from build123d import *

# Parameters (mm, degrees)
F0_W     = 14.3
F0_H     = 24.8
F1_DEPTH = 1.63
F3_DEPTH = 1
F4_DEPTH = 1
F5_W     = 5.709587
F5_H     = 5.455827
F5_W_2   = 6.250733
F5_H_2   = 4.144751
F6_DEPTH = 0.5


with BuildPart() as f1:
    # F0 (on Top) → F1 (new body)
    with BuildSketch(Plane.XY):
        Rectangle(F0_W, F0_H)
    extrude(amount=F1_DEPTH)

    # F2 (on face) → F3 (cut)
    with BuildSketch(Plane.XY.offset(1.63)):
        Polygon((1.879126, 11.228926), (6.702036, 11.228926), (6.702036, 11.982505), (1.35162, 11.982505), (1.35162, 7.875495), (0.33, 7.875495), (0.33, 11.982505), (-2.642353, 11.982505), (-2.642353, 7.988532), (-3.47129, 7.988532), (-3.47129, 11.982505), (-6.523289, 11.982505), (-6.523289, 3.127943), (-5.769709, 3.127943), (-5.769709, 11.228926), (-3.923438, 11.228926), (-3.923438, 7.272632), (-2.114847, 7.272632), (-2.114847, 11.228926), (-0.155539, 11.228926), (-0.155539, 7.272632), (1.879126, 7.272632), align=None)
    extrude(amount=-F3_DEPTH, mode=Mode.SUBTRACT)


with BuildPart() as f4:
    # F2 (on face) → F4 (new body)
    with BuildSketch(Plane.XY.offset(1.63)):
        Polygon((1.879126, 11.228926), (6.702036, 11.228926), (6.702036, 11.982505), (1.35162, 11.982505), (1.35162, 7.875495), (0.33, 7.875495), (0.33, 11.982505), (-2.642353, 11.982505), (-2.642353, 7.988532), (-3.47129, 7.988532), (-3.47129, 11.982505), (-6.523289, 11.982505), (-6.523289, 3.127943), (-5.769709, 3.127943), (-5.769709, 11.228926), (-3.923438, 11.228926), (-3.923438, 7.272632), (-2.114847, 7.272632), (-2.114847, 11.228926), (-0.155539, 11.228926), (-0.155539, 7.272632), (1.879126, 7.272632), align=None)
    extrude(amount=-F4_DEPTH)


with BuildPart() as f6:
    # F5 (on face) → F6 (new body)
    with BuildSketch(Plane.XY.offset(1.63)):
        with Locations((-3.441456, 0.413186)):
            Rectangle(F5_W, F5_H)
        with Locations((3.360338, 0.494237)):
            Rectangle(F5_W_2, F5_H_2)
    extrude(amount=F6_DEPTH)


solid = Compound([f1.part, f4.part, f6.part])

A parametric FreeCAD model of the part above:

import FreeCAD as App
import Part
import Sketcher

V = App.Vector

doc = App.newDocument("Part")
params = doc.addObject("Spreadsheet::Sheet", "Params")
for row, (alias, value) in enumerate([
    ("sketch1_width", "14.3 mm"),
    ("sketch1_height", "24.8 mm"),
    ("pad1_length", "1.63 mm"),
    ("pocket1_length", "1 mm"),
    ("pad2_length", "1 mm"),
    ("pad3_length", "0.5 mm"),
], start=1):
    params.set(f"A{row}", alias)
    params.set(f"B{row}", "=" + value)
    params.setAlias(f"B{row}", alias)

body = doc.addObject("PartDesign::Body", "Body")

sketch1 = body.newObject("Sketcher::SketchObject", "Sketch")
sketch1.AttachmentSupport = (doc.getObject("XY_Plane"), [""])
sketch1.MapMode = "FlatFace"
sketch1.addGeometry(Part.LineSegment(V(-7.15, 12.4, 0), V(-7.15, -12.4, 0)), False)
sketch1.addGeometry(Part.LineSegment(V(-7.15, -12.4, 0), V(7.15, -12.4, 0)), False)
sketch1.addGeometry(Part.LineSegment(V(7.15, -12.4, 0), V(7.15, 12.4, 0)), False)
sketch1.addGeometry(Part.LineSegment(V(7.15, 12.4, 0), V(-7.15, 12.4, 0)), False)
sketch1.addConstraint(Sketcher.Constraint("Coincident", 0, 2, 1, 1))
sketch1.addConstraint(Sketcher.Constraint("Coincident", 1, 2, 2, 1))
sketch1.addConstraint(Sketcher.Constraint("Coincident", 2, 2, 3, 1))
sketch1.addConstraint(Sketcher.Constraint("Coincident", 3, 2, 0, 1))
sketch1.addConstraint(Sketcher.Constraint("Vertical", 0))
sketch1.addConstraint(Sketcher.Constraint("Horizontal", 1))
sketch1.addConstraint(Sketcher.Constraint("Vertical", 2))
sketch1.addConstraint(Sketcher.Constraint("Horizontal", 3))
sketch1.addConstraint(Sketcher.Constraint("Symmetric", 0, 2, 2, 2, -1, 1))
sketch1.addConstraint(Sketcher.Constraint("DistanceX", 1, 1, 1, 2, 14.3))
sketch1.addConstraint(Sketcher.Constraint("DistanceY", 0, 2, 0, 1, 24.8))
sketch1.setExpression("Constraints[9]", "Params.sketch1_width")
sketch1.setExpression("Constraints[10]", "Params.sketch1_height")
pad1 = body.newObject("PartDesign::Pad", "Pad")
pad1.Profile = sketch1
pad1.setExpression("Length", "Params.pad1_length")

sketch2 = body.newObject("Sketcher::SketchObject", "Sketch001")
sketch2.AttachmentSupport = (doc.getObject("XY_Plane"), [""])
sketch2.MapMode = "FlatFace"
sketch2.AttachmentOffset = App.Placement(V(0, 0, 1.63), App.Rotation())
sketch2.addGeometry(Part.LineSegment(V(1.879126, 11.228926, 0), V(6.702036, 11.228926, 0)), False)
sketch2.addGeometry(Part.LineSegment(V(6.702036, 11.228926, 0), V(6.702036, 11.982505, 0)), False)
sketch2.addGeometry(Part.LineSegment(V(6.702036, 11.982505, 0), V(1.35162, 11.982505, 0)), False)
sketch2.addGeometry(Part.LineSegment(V(1.35162, 11.982505, 0), V(1.35162, 7.875495, 0)), False)
sketch2.addGeometry(Part.LineSegment(V(1.35162, 7.875495, 0), V(0.33, 7.875495, 0)), False)
sketch2.addGeometry(Part.LineSegment(V(0.33, 7.875495, 0), V(0.33, 11.982505, 0)), False)
sketch2.addGeometry(Part.LineSegment(V(0.33, 11.982505, 0), V(-2.642353, 11.982505, 0)), False)
sketch2.addGeometry(Part.LineSegment(V(-2.642353, 11.982505, 0), V(-2.642353, 7.988532, 0)), False)
sketch2.addGeometry(Part.LineSegment(V(-2.642353, 7.988532, 0), V(-3.47129, 7.988532, 0)), False)
sketch2.addGeometry(Part.LineSegment(V(-3.47129, 7.988532, 0), V(-3.47129, 11.982505, 0)), False)
sketch2.addGeometry(Part.LineSegment(V(-3.47129, 11.982505, 0), V(-6.523289, 11.982505, 0)), False)
sketch2.addGeometry(Part.LineSegment(V(-6.523289, 11.982505, 0), V(-6.523289, 3.127943, 0)), False)
sketch2.addGeometry(Part.LineSegment(V(-6.523289, 3.127943, 0), V(-5.769709, 3.127943, 0)), False)
sketch2.addGeometry(Part.LineSegment(V(-5.769709, 3.127943, 0), V(-5.769709, 11.228926, 0)), False)
sketch2.addGeometry(Part.LineSegment(V(-5.769709, 11.228926, 0), V(-3.923438, 11.228926, 0)), False)
sketch2.addGeometry(Part.LineSegment(V(-3.923438, 11.228926, 0), V(-3.923438, 7.272632, 0)), False)
sketch2.addGeometry(Part.LineSegment(V(-3.923438, 7.272632, 0), V(-2.114847, 7.272632, 0)), False)
sketch2.addGeometry(Part.LineSegment(V(-2.114847, 7.272632, 0), V(-2.114847, 11.228926, 0)), False)
sketch2.addGeometry(Part.LineSegment(V(-2.114847, 11.228926, 0), V(-0.155539, 11.228926, 0)), False)
sketch2.addGeometry(Part.LineSegment(V(-0.155539, 11.228926, 0), V(-0.155539, 7.272632, 0)), False)
sketch2.addGeometry(Part.LineSegment(V(-0.155539, 7.272632, 0), V(1.879126, 7.272632, 0)), False)
sketch2.addGeometry(Part.LineSegment(V(1.879126, 7.272632, 0), V(1.879126, 11.228926, 0)), False)
sketch2.addConstraint(Sketcher.Constraint("Coincident", 0, 2, 1, 1))
sketch2.addConstraint(Sketcher.Constraint("Coincident", 1, 2, 2, 1))
sketch2.addConstraint(Sketcher.Constraint("Coincident", 2, 2, 3, 1))
sketch2.addConstraint(Sketcher.Constraint("Coincident", 3, 2, 4, 1))
sketch2.addConstraint(Sketcher.Constraint("Coincident", 4, 2, 5, 1))
sketch2.addConstraint(Sketcher.Constraint("Coincident", 5, 2, 6, 1))
sketch2.addConstraint(Sketcher.Constraint("Coincident", 6, 2, 7, 1))
sketch2.addConstraint(Sketcher.Constraint("Coincident", 7, 2, 8, 1))
sketch2.addConstraint(Sketcher.Constraint("Coincident", 8, 2, 9, 1))
sketch2.addConstraint(Sketcher.Constraint("Coincident", 9, 2, 10, 1))
sketch2.addConstraint(Sketcher.Constraint("Coincident", 10, 2, 11, 1))
sketch2.addConstraint(Sketcher.Constraint("Coincident", 11, 2, 12, 1))
sketch2.addConstraint(Sketcher.Constraint("Coincident", 12, 2, 13, 1))
sketch2.addConstraint(Sketcher.Constraint("Coincident", 13, 2, 14, 1))
sketch2.addConstraint(Sketcher.Constraint("Coincident", 14, 2, 15, 1))
sketch2.addConstraint(Sketcher.Constraint("Coincident", 15, 2, 16, 1))
sketch2.addConstraint(Sketcher.Constraint("Coincident", 16, 2, 17, 1))
sketch2.addConstraint(Sketcher.Constraint("Coincident", 17, 2, 18, 1))
sketch2.addConstraint(Sketcher.Constraint("Coincident", 18, 2, 19, 1))
sketch2.addConstraint(Sketcher.Constraint("Coincident", 19, 2, 20, 1))
sketch2.addConstraint(Sketcher.Constraint("Coincident", 20, 2, 21, 1))
sketch2.addConstraint(Sketcher.Constraint("Coincident", 21, 2, 0, 1))
sketch2.addConstraint(Sketcher.Constraint("Horizontal", 0))
sketch2.addConstraint(Sketcher.Constraint("Vertical", 1))
sketch2.addConstraint(Sketcher.Constraint("Horizontal", 2))
sketch2.addConstraint(Sketcher.Constraint("Vertical", 3))
sketch2.addConstraint(Sketcher.Constraint("Horizontal", 4))
sketch2.addConstraint(Sketcher.Constraint("Vertical", 5))
sketch2.addConstraint(Sketcher.Constraint("Horizontal", 6))
sketch2.addConstraint(Sketcher.Constraint("Vertical", 7))
sketch2.addConstraint(Sketcher.Constraint("Horizontal", 8))
sketch2.addConstraint(Sketcher.Constraint("Vertical", 9))
sketch2.addConstraint(Sketcher.Constraint("Horizontal", 10))
sketch2.addConstraint(Sketcher.Constraint("Vertical", 11))
sketch2.addConstraint(Sketcher.Constraint("Horizontal", 12))
sketch2.addConstraint(Sketcher.Constraint("Vertical", 13))
sketch2.addConstraint(Sketcher.Constraint("Horizontal", 14))
sketch2.addConstraint(Sketcher.Constraint("Vertical", 15))
sketch2.addConstraint(Sketcher.Constraint("Horizontal", 16))
sketch2.addConstraint(Sketcher.Constraint("Vertical", 17))
sketch2.addConstraint(Sketcher.Constraint("Horizontal", 18))
sketch2.addConstraint(Sketcher.Constraint("Vertical", 19))
sketch2.addConstraint(Sketcher.Constraint("Horizontal", 20))
sketch2.addConstraint(Sketcher.Constraint("Vertical", 21))
sketch2.addConstraint(Sketcher.Constraint("Horizontal", 2, 2, 5, 2))
sketch2.addConstraint(Sketcher.Constraint("Horizontal", 6, 2, 9, 2))
sketch2.addConstraint(Sketcher.Constraint("Horizontal", 0, 2, 13, 2))
sketch2.addConstraint(Sketcher.Constraint("Horizontal", 14, 2, 17, 2))
sketch2.addConstraint(Sketcher.Constraint("Horizontal", 16, 2, 19, 2))
sketch2.addConstraint(Sketcher.Constraint("Equal", 12, 1))
sketch2.addConstraint(Sketcher.Constraint("DistanceX", 10, 2, 10, 1, 3.051999))
sketch2.addConstraint(Sketcher.Constraint("DistanceX", -1, 1, 4, 2, 0.33))
sketch2.addConstraint(Sketcher.Constraint("DistanceX", 0, 1, 0, 2, 4.82291))
sketch2.addConstraint(Sketcher.Constraint("DistanceX", 4, 2, 4, 1, 1.02162))
sketch2.addConstraint(Sketcher.Constraint("DistanceX", 12, 1, 12, 2, 0.75358))
sketch2.addConstraint(Sketcher.Constraint("DistanceX", 14, 1, 14, 2, 1.846271))
sketch2.addConstraint(Sketcher.Constraint("DistanceX", 16, 1, 16, 2, 1.808591))
sketch2.addConstraint(Sketcher.Constraint("DistanceY", 3, 2, 3, 1, 4.10701))
sketch2.addConstraint(Sketcher.Constraint("DistanceY", 15, 2, 8, 2, 0.7159))
sketch2.addConstraint(Sketcher.Constraint("DistanceX", 2, 2, 2, 1, 5.350416))
sketch2.addConstraint(Sketcher.Constraint("DistanceX", 6, 2, 6, 1, 2.972353))
sketch2.addConstraint(Sketcher.Constraint("DistanceX", 8, 2, 8, 1, 0.828937))
sketch2.addConstraint(Sketcher.Constraint("DistanceX", 18, 1, 18, 2, 1.959308))
sketch2.addConstraint(Sketcher.Constraint("DistanceY", 7, 2, 7, 1, 3.993973))
sketch2.addConstraint(Sketcher.Constraint("DistanceY", 11, 2, 11, 1, 8.854562))
sketch2.addConstraint(Sketcher.Constraint("DistanceY", -1, 1, 15, 2, 7.272632))
pocket1 = body.newObject("PartDesign::Pocket", "Pocket")
pocket1.Profile = sketch2
pocket1.setExpression("Length", "Params.pocket1_length")
body2 = doc.addObject("PartDesign::Body", "Body001")

sketch3 = body2.newObject("Sketcher::SketchObject", "Sketch002")
sketch3.AttachmentSupport = (doc.getObject("XY_Plane001"), [""])
sketch3.MapMode = "FlatFace"
sketch3.AttachmentOffset = App.Placement(V(0, 0, 1.63), App.Rotation())
sketch3.addGeometry(Part.LineSegment(V(1.879126, 11.228926, 0), V(6.702036, 11.228926, 0)), False)
sketch3.addGeometry(Part.LineSegment(V(6.702036, 11.228926, 0), V(6.702036, 11.982505, 0)), False)
sketch3.addGeometry(Part.LineSegment(V(6.702036, 11.982505, 0), V(1.35162, 11.982505, 0)), False)
sketch3.addGeometry(Part.LineSegment(V(1.35162, 11.982505, 0), V(1.35162, 7.875495, 0)), False)
sketch3.addGeometry(Part.LineSegment(V(1.35162, 7.875495, 0), V(0.33, 7.875495, 0)), False)
sketch3.addGeometry(Part.LineSegment(V(0.33, 7.875495, 0), V(0.33, 11.982505, 0)), False)
sketch3.addGeometry(Part.LineSegment(V(0.33, 11.982505, 0), V(-2.642353, 11.982505, 0)), False)
sketch3.addGeometry(Part.LineSegment(V(-2.642353, 11.982505, 0), V(-2.642353, 7.988532, 0)), False)
sketch3.addGeometry(Part.LineSegment(V(-2.642353, 7.988532, 0), V(-3.47129, 7.988532, 0)), False)
sketch3.addGeometry(Part.LineSegment(V(-3.47129, 7.988532, 0), V(-3.47129, 11.982505, 0)), False)
sketch3.addGeometry(Part.LineSegment(V(-3.47129, 11.982505, 0), V(-6.523289, 11.982505, 0)), False)
sketch3.addGeometry(Part.LineSegment(V(-6.523289, 11.982505, 0), V(-6.523289, 3.127943, 0)), False)
sketch3.addGeometry(Part.LineSegment(V(-6.523289, 3.127943, 0), V(-5.769709, 3.127943, 0)), False)
sketch3.addGeometry(Part.LineSegment(V(-5.769709, 3.127943, 0), V(-5.769709, 11.228926, 0)), False)
sketch3.addGeometry(Part.LineSegment(V(-5.769709, 11.228926, 0), V(-3.923438, 11.228926, 0)), False)
sketch3.addGeometry(Part.LineSegment(V(-3.923438, 11.228926, 0), V(-3.923438, 7.272632, 0)), False)
sketch3.addGeometry(Part.LineSegment(V(-3.923438, 7.272632, 0), V(-2.114847, 7.272632, 0)), False)
sketch3.addGeometry(Part.LineSegment(V(-2.114847, 7.272632, 0), V(-2.114847, 11.228926, 0)), False)
sketch3.addGeometry(Part.LineSegment(V(-2.114847, 11.228926, 0), V(-0.155539, 11.228926, 0)), False)
sketch3.addGeometry(Part.LineSegment(V(-0.155539, 11.228926, 0), V(-0.155539, 7.272632, 0)), False)
sketch3.addGeometry(Part.LineSegment(V(-0.155539, 7.272632, 0), V(1.879126, 7.272632, 0)), False)
sketch3.addGeometry(Part.LineSegment(V(1.879126, 7.272632, 0), V(1.879126, 11.228926, 0)), False)
sketch3.addConstraint(Sketcher.Constraint("Coincident", 0, 2, 1, 1))
sketch3.addConstraint(Sketcher.Constraint("Coincident", 1, 2, 2, 1))
sketch3.addConstraint(Sketcher.Constraint("Coincident", 2, 2, 3, 1))
sketch3.addConstraint(Sketcher.Constraint("Coincident", 3, 2, 4, 1))
sketch3.addConstraint(Sketcher.Constraint("Coincident", 4, 2, 5, 1))
sketch3.addConstraint(Sketcher.Constraint("Coincident", 5, 2, 6, 1))
sketch3.addConstraint(Sketcher.Constraint("Coincident", 6, 2, 7, 1))
sketch3.addConstraint(Sketcher.Constraint("Coincident", 7, 2, 8, 1))
sketch3.addConstraint(Sketcher.Constraint("Coincident", 8, 2, 9, 1))
sketch3.addConstraint(Sketcher.Constraint("Coincident", 9, 2, 10, 1))
sketch3.addConstraint(Sketcher.Constraint("Coincident", 10, 2, 11, 1))
sketch3.addConstraint(Sketcher.Constraint("Coincident", 11, 2, 12, 1))
sketch3.addConstraint(Sketcher.Constraint("Coincident", 12, 2, 13, 1))
sketch3.addConstraint(Sketcher.Constraint("Coincident", 13, 2, 14, 1))
sketch3.addConstraint(Sketcher.Constraint("Coincident", 14, 2, 15, 1))
sketch3.addConstraint(Sketcher.Constraint("Coincident", 15, 2, 16, 1))
sketch3.addConstraint(Sketcher.Constraint("Coincident", 16, 2, 17, 1))
sketch3.addConstraint(Sketcher.Constraint("Coincident", 17, 2, 18, 1))
sketch3.addConstraint(Sketcher.Constraint("Coincident", 18, 2, 19, 1))
sketch3.addConstraint(Sketcher.Constraint("Coincident", 19, 2, 20, 1))
sketch3.addConstraint(Sketcher.Constraint("Coincident", 20, 2, 21, 1))
sketch3.addConstraint(Sketcher.Constraint("Coincident", 21, 2, 0, 1))
sketch3.addConstraint(Sketcher.Constraint("Horizontal", 0))
sketch3.addConstraint(Sketcher.Constraint("Vertical", 1))
sketch3.addConstraint(Sketcher.Constraint("Horizontal", 2))
sketch3.addConstraint(Sketcher.Constraint("Vertical", 3))
sketch3.addConstraint(Sketcher.Constraint("Horizontal", 4))
sketch3.addConstraint(Sketcher.Constraint("Vertical", 5))
sketch3.addConstraint(Sketcher.Constraint("Horizontal", 6))
sketch3.addConstraint(Sketcher.Constraint("Vertical", 7))
sketch3.addConstraint(Sketcher.Constraint("Horizontal", 8))
sketch3.addConstraint(Sketcher.Constraint("Vertical", 9))
sketch3.addConstraint(Sketcher.Constraint("Horizontal", 10))
sketch3.addConstraint(Sketcher.Constraint("Vertical", 11))
sketch3.addConstraint(Sketcher.Constraint("Horizontal", 12))
sketch3.addConstraint(Sketcher.Constraint("Vertical", 13))
sketch3.addConstraint(Sketcher.Constraint("Horizontal", 14))
sketch3.addConstraint(Sketcher.Constraint("Vertical", 15))
sketch3.addConstraint(Sketcher.Constraint("Horizontal", 16))
sketch3.addConstraint(Sketcher.Constraint("Vertical", 17))
sketch3.addConstraint(Sketcher.Constraint("Horizontal", 18))
sketch3.addConstraint(Sketcher.Constraint("Vertical", 19))
sketch3.addConstraint(Sketcher.Constraint("Horizontal", 20))
sketch3.addConstraint(Sketcher.Constraint("Vertical", 21))
sketch3.addConstraint(Sketcher.Constraint("Horizontal", 2, 2, 5, 2))
sketch3.addConstraint(Sketcher.Constraint("Horizontal", 6, 2, 9, 2))
sketch3.addConstraint(Sketcher.Constraint("Horizontal", 0, 2, 13, 2))
sketch3.addConstraint(Sketcher.Constraint("Horizontal", 14, 2, 17, 2))
sketch3.addConstraint(Sketcher.Constraint("Horizontal", 16, 2, 19, 2))
sketch3.addConstraint(Sketcher.Constraint("Equal", 12, 1))
sketch3.addConstraint(Sketcher.Constraint("DistanceX", 10, 2, 10, 1, 3.051999))
sketch3.addConstraint(Sketcher.Constraint("DistanceX", -1, 1, 4, 2, 0.33))
sketch3.addConstraint(Sketcher.Constraint("DistanceX", 0, 1, 0, 2, 4.82291))
sketch3.addConstraint(Sketcher.Constraint("DistanceX", 4, 2, 4, 1, 1.02162))
sketch3.addConstraint(Sketcher.Constraint("DistanceX", 12, 1, 12, 2, 0.75358))
sketch3.addConstraint(Sketcher.Constraint("DistanceX", 14, 1, 14, 2, 1.846271))
sketch3.addConstraint(Sketcher.Constraint("DistanceX", 16, 1, 16, 2, 1.808591))
sketch3.addConstraint(Sketcher.Constraint("DistanceY", 3, 2, 3, 1, 4.10701))
sketch3.addConstraint(Sketcher.Constraint("DistanceY", 15, 2, 8, 2, 0.7159))
sketch3.addConstraint(Sketcher.Constraint("DistanceX", 2, 2, 2, 1, 5.350416))
sketch3.addConstraint(Sketcher.Constraint("DistanceX", 6, 2, 6, 1, 2.972353))
sketch3.addConstraint(Sketcher.Constraint("DistanceX", 8, 2, 8, 1, 0.828937))
sketch3.addConstraint(Sketcher.Constraint("DistanceX", 18, 1, 18, 2, 1.959308))
sketch3.addConstraint(Sketcher.Constraint("DistanceY", 7, 2, 7, 1, 3.993973))
sketch3.addConstraint(Sketcher.Constraint("DistanceY", 11, 2, 11, 1, 8.854562))
sketch3.addConstraint(Sketcher.Constraint("DistanceY", -1, 1, 15, 2, 7.272632))
pad2 = body2.newObject("PartDesign::Pad", "Pad001")
pad2.Profile = sketch3
pad2.setExpression("Length", "Params.pad2_length")
pad2.Reversed = True
body3 = doc.addObject("PartDesign::Body", "Body002")
body3.AllowCompound = True

sketch4 = body3.newObject("Sketcher::SketchObject", "Sketch003")
sketch4.AttachmentSupport = (doc.getObject("XY_Plane002"), [""])
sketch4.MapMode = "FlatFace"
sketch4.AttachmentOffset = App.Placement(V(0, 0, 1.63), App.Rotation())
sketch4.addGeometry(Part.LineSegment(V(-6.29625, 3.1411, 0), V(-6.29625, -2.314728, 0)), False)
sketch4.addGeometry(Part.LineSegment(V(-6.29625, -2.314728, 0), V(-0.586662, -2.314728, 0)), False)
sketch4.addGeometry(Part.LineSegment(V(-0.586662, -2.314728, 0), V(-0.586662, 3.1411, 0)), False)
sketch4.addGeometry(Part.LineSegment(V(-0.586662, 3.1411, 0), V(-6.29625, 3.1411, 0)), False)
sketch4.addGeometry(Part.LineSegment(V(0.234971, 2.566613, 0), V(0.234971, -1.578139, 0)), False)
sketch4.addGeometry(Part.LineSegment(V(0.234971, -1.578139, 0), V(6.485704, -1.578139, 0)), False)
sketch4.addGeometry(Part.LineSegment(V(6.485704, -1.578139, 0), V(6.485704, 2.566613, 0)), False)
sketch4.addGeometry(Part.LineSegment(V(6.485704, 2.566613, 0), V(0.234971, 2.566613, 0)), False)
sketch4.addConstraint(Sketcher.Constraint("Coincident", 0, 2, 1, 1))
sketch4.addConstraint(Sketcher.Constraint("Coincident", 1, 2, 2, 1))
sketch4.addConstraint(Sketcher.Constraint("Coincident", 2, 2, 3, 1))
sketch4.addConstraint(Sketcher.Constraint("Coincident", 3, 2, 0, 1))
sketch4.addConstraint(Sketcher.Constraint("Coincident", 4, 2, 5, 1))
sketch4.addConstraint(Sketcher.Constraint("Coincident", 5, 2, 6, 1))
sketch4.addConstraint(Sketcher.Constraint("Coincident", 6, 2, 7, 1))
sketch4.addConstraint(Sketcher.Constraint("Coincident", 7, 2, 4, 1))
sketch4.addConstraint(Sketcher.Constraint("Vertical", 0))
sketch4.addConstraint(Sketcher.Constraint("Horizontal", 1))
sketch4.addConstraint(Sketcher.Constraint("Vertical", 2))
sketch4.addConstraint(Sketcher.Constraint("Horizontal", 3))
sketch4.addConstraint(Sketcher.Constraint("Vertical", 4))
sketch4.addConstraint(Sketcher.Constraint("Horizontal", 5))
sketch4.addConstraint(Sketcher.Constraint("Vertical", 6))
sketch4.addConstraint(Sketcher.Constraint("Horizontal", 7))
sketch4.addConstraint(Sketcher.Constraint("DistanceY", 4, 2, 4, 1, 4.144751))
sketch4.addConstraint(Sketcher.Constraint("DistanceY", -1, 1, 2, 2, 3.1411))
sketch4.addConstraint(Sketcher.Constraint("DistanceX", 1, 1, 1, 2, 5.709587))
sketch4.addConstraint(Sketcher.Constraint("DistanceX", 5, 1, 5, 2, 6.250733))
sketch4.addConstraint(Sketcher.Constraint("DistanceY", 0, 2, 0, 1, 5.455827))
sketch4.addConstraint(Sketcher.Constraint("DistanceX", 0, 2, -1, 1, 6.29625))
sketch4.addConstraint(Sketcher.Constraint("DistanceX", -1, 1, 4, 2, 0.234971))
sketch4.addConstraint(Sketcher.Constraint("DistanceY", 4, 2, -1, 1, 1.578139))
pad3 = body3.newObject("PartDesign::Pad", "Pad002")
pad3.Profile = sketch4
pad3.setExpression("Length", "Params.pad3_length")

doc.recompute()
